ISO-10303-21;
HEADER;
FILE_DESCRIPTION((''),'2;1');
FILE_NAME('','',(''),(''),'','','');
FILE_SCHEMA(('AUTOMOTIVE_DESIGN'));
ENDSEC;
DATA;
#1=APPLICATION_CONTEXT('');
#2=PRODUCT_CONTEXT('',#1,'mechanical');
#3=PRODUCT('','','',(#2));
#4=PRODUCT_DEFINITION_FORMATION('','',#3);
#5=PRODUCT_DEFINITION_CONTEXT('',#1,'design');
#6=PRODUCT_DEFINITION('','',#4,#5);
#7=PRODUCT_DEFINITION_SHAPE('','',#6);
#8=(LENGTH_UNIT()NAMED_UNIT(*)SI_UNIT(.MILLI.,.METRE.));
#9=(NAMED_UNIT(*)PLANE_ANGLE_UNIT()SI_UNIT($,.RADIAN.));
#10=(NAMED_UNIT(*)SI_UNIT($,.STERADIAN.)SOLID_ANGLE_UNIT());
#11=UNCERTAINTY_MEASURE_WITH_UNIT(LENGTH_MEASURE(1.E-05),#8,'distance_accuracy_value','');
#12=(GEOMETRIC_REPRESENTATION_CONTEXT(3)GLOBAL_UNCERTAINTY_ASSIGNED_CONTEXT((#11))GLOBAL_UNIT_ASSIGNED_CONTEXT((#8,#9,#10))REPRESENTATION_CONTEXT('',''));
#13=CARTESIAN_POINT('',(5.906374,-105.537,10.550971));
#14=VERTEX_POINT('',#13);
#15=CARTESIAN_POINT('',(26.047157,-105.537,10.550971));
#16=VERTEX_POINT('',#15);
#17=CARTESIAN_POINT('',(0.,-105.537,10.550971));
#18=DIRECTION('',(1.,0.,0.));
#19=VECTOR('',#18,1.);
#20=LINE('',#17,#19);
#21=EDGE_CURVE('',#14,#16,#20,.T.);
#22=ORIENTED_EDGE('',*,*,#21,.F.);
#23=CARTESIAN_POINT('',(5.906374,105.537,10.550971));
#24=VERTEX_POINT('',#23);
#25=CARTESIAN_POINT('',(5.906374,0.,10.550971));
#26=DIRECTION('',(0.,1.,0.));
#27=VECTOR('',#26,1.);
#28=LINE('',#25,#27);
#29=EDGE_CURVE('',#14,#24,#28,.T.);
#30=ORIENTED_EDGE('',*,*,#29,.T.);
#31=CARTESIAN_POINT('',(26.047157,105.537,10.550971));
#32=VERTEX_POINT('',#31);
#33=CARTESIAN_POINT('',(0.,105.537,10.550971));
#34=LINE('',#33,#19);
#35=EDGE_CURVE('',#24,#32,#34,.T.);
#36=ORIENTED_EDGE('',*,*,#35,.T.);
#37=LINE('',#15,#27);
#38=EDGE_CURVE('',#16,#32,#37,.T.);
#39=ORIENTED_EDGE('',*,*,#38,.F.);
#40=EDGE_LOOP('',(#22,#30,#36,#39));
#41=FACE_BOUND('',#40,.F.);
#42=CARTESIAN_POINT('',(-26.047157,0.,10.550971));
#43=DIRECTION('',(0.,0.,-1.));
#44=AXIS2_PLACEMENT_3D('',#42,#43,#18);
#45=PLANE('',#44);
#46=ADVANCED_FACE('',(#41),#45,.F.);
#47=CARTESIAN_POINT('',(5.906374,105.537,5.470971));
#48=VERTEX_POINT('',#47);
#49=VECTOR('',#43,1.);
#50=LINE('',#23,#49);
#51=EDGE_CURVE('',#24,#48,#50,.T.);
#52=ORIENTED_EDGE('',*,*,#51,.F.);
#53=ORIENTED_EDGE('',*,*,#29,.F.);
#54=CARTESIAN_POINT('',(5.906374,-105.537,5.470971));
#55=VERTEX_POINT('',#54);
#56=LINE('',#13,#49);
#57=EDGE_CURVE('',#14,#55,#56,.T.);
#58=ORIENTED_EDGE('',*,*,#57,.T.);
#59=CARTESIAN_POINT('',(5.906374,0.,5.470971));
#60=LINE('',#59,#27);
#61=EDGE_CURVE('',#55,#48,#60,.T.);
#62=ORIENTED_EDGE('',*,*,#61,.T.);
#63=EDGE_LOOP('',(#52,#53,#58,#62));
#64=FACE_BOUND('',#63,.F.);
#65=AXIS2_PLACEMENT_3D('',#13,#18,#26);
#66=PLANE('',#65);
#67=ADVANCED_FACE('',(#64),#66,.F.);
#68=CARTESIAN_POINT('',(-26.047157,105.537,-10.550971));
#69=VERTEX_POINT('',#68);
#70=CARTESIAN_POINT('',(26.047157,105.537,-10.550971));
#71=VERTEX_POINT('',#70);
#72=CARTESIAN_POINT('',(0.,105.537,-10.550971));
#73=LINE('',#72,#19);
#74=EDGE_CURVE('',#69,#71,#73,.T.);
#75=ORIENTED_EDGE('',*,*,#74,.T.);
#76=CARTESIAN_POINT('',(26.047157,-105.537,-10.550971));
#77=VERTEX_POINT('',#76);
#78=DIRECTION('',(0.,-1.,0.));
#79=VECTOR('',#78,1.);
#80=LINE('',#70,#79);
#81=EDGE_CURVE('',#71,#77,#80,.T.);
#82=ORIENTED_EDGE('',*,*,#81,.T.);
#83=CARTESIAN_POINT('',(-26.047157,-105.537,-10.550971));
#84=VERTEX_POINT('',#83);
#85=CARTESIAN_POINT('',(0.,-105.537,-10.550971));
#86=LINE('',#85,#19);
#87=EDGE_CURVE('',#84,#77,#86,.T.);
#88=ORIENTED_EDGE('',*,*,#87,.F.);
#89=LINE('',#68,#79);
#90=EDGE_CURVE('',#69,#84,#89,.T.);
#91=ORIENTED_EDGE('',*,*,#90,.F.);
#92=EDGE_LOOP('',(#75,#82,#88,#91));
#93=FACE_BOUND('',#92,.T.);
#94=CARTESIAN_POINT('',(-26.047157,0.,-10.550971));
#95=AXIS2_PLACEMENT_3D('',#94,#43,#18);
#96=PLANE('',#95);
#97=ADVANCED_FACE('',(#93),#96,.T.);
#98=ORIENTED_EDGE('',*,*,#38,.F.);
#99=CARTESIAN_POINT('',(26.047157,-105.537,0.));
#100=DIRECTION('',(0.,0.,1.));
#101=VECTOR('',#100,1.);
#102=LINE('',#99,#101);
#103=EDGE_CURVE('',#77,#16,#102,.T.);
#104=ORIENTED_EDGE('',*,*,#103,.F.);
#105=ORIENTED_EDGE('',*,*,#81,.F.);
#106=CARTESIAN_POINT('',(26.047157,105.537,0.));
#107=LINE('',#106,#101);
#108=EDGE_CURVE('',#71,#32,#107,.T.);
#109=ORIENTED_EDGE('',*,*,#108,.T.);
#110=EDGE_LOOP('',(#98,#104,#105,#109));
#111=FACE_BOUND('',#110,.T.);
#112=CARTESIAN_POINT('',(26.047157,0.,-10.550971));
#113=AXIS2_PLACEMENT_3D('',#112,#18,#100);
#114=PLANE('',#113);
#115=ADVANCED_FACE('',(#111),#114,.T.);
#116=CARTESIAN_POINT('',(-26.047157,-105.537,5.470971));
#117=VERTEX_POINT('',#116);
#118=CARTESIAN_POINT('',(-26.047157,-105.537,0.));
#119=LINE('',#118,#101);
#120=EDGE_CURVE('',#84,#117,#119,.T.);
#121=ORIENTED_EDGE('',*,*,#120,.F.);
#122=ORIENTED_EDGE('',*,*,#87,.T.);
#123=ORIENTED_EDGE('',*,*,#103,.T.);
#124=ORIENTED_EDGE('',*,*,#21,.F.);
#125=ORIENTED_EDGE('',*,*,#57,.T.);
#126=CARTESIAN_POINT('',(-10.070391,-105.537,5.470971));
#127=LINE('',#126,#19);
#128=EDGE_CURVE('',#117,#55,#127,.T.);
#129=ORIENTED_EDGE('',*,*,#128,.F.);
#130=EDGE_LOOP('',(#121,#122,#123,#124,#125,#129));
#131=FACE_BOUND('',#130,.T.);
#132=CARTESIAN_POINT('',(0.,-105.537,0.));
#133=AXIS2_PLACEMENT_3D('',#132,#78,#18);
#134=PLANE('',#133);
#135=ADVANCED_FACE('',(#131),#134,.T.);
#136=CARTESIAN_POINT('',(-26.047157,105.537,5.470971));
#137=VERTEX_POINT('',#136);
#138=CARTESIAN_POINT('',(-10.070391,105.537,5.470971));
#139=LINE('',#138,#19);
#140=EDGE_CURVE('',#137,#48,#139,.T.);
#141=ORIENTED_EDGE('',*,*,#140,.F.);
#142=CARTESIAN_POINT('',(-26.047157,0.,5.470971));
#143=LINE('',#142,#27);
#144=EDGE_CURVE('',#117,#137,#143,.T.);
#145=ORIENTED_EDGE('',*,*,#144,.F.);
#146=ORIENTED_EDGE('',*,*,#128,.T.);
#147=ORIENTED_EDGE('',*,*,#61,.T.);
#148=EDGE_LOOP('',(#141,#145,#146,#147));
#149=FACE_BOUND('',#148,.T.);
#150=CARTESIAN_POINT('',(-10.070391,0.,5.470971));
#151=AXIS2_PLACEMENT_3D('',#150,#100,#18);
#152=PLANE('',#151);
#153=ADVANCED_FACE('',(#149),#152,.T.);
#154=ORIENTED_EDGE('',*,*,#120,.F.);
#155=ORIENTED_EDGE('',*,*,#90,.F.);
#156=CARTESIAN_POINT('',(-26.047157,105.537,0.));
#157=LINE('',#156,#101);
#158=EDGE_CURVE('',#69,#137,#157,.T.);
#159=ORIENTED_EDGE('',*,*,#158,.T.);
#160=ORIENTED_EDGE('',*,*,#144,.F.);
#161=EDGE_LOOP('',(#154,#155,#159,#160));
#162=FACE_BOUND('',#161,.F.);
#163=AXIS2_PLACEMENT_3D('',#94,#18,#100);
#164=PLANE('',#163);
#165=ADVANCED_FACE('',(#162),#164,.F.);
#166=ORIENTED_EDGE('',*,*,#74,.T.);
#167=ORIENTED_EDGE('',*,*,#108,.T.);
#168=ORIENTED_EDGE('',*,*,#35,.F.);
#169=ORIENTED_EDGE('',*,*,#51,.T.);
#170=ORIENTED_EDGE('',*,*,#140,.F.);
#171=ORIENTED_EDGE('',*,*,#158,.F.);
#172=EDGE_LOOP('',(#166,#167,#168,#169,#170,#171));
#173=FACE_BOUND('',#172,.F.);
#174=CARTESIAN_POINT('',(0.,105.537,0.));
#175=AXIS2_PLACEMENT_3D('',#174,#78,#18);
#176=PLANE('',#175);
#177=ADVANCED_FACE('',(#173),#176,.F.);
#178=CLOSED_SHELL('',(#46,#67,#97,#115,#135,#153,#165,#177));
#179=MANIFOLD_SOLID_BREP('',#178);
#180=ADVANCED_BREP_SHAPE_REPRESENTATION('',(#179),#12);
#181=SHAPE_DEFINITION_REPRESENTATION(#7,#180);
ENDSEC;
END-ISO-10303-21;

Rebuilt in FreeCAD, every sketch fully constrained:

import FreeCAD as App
import Part
import Sketcher
Q = App.Units.Quantity


def add_polygon(sketch, points):
    """Adds a closed chain of lines whose ends are joined by coincident constraints."""
    first, n = sketch.GeometryCount, len(points)
    for a, b in zip(points, points[1:] + points[:1]):
        sketch.addGeometry(Part.LineSegment(App.Vector(*a, 0), App.Vector(*b, 0)), False)
    for i in range(n):
        sketch.addConstraint(Sketcher.Constraint("Coincident", first + i, 2, first + (i + 1) % n, 1))

doc = App.newDocument("Part")
params = doc.addObject("Spreadsheet::Sheet", "Params")
for row, (alias, value) in enumerate([
    ("pad1_length", "8.31 in"),
    ("sketch2_height", "8.31 in"),
    ("pocket1_length", "0.2 in"),
], start=1):
    params.set(f"A{row}", alias)
    params.set(f"B{row}", "=" + value)
    params.setAlias(f"B{row}", alias)

body = doc.addObject("PartDesign::Body", "Body")

# Sketch on XZ plane
sketch1 = body.newObject("Sketcher::SketchObject", "Sketch")
sketch1.AttachmentSupport = (doc.getObject("XZ_Plane"), [""])
sketch1.MapMode = "FlatFace"
add_polygon(sketch1, [(-26.047157, 10.550971), (-26.047157, -10.550971), (26.047157, -10.550971), (26.047157, 10.550971)])  # lines 0-3
sketch1.addConstraint(Sketcher.Constraint("Vertical", 0))
sketch1.addConstraint(Sketcher.Constraint("Horizontal", 1))
sketch1.addConstraint(Sketcher.Constraint("Vertical", 2))
sketch1.addConstraint(Sketcher.Constraint("Horizontal", 3))
sketch1.addConstraint(Sketcher.Constraint("Symmetric", 0, 2, 2, 2, -1, 1))
sketch1.addConstraint(Sketcher.Constraint("DistanceX", 1, 1, 1, 2, Q("52.094314 mm")))
sketch1.addConstraint(Sketcher.Constraint("DistanceY", 0, 2, 0, 1, Q("21.101943 mm")))
pad1 = body.newObject("PartDesign::Pad", "Pad")
pad1.Profile = sketch1
pad1.setExpression("Length", "Params.pad1_length")
pad1.Midplane = True

# Sketch on XY plane
sketch2 = body.newObject("Sketcher::SketchObject", "Sketch001")
sketch2.AttachmentSupport = (doc.getObject("XY_Plane"), [""])
sketch2.MapMode = "FlatFace"
sketch2.AttachmentOffset = App.Placement(App.Vector(0, 0, 10.550971), App.Rotation())
add_polygon(sketch2, [(-26.047157, 105.537), (-26.047157, -105.537), (5.906374, -105.537), (5.906374, 105.537)])  # lines 0-3
sketch2.addConstraint(Sketcher.Constraint("Vertical", 0))
sketch2.addConstraint(Sketcher.Constraint("Horizontal", 1))
sketch2.addConstraint(Sketcher.Constraint("Vertical", 2))
sketch2.addConstraint(Sketcher.Constraint("Horizontal", 3))
sketch2.addConstraint(Sketcher.Constraint("DistanceY", 0, 2, 0, 1, Q("8.31 in")))
sketch2.addConstraint(Sketcher.Constraint("DistanceY", 0, 2, -1, 1, Q("4.155 in")))
sketch2.addConstraint(Sketcher.Constraint("DistanceX", 1, 1, 1, 2, Q("31.953531 mm")))
sketch2.addConstraint(Sketcher.Constraint("DistanceX", 0, 2, -1, 1, Q("26.047157 mm")))
sketch2.setExpression("Constraints[8]", "Params.sketch2_height")
pocket1 = body.newObject("PartDesign::Pocket", "Pocket")
pocket1.Profile = sketch2
pocket1.setExpression("Length", "Params.pocket1_length")

doc.recompute()
